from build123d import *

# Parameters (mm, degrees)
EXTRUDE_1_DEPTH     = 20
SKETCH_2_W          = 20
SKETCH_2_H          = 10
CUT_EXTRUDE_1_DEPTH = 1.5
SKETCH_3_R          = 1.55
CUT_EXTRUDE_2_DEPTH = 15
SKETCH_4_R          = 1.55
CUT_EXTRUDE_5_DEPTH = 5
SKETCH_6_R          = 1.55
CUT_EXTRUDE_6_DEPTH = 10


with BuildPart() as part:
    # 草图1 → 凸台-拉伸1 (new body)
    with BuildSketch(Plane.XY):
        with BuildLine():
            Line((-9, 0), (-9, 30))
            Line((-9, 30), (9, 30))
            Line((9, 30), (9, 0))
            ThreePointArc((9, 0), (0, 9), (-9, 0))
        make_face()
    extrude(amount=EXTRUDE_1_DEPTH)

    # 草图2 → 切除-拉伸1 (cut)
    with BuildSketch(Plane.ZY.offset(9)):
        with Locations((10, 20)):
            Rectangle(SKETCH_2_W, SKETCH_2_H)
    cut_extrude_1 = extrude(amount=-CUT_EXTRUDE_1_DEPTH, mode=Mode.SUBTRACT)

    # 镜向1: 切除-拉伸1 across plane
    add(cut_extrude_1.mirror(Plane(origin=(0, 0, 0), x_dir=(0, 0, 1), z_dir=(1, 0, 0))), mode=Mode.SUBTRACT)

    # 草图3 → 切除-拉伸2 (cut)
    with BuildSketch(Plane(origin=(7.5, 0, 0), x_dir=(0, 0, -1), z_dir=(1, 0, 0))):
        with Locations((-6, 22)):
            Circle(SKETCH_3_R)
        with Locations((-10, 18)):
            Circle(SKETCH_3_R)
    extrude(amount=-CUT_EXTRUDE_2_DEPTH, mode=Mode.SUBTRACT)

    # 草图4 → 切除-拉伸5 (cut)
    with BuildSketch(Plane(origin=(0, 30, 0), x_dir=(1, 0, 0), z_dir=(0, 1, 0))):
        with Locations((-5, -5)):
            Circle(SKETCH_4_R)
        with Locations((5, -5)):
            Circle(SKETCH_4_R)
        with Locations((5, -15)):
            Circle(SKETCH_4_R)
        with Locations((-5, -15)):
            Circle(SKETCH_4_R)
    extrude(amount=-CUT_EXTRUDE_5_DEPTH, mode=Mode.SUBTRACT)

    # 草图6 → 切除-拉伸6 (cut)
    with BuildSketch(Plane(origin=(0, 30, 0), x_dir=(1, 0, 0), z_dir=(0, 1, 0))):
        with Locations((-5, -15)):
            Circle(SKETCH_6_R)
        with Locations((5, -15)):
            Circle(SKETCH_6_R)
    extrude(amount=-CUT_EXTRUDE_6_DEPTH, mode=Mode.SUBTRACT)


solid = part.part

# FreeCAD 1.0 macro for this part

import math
import FreeCAD as App
import Part
import Sketcher
Q = App.Units.Quantity


def add_polygon(sketch, points):
    """Adds a closed chain of lines whose ends are joined by coincident constraints."""
    first, n = sketch.GeometryCount, len(points)
    for a, b in zip(points, points[1:] + points[:1]):
        sketch.addGeometry(Part.LineSegment(App.Vector(*a, 0), App.Vector(*b, 0)), False)
    for i in range(n):
        sketch.addConstraint(Sketcher.Constraint("Coincident", first + i, 2, first + (i + 1) % n, 1))

doc = App.newDocument("Part")
body = doc.addObject("PartDesign::Body", "Body")

# Sketch on XY plane
sketch1 = body.newObject("Sketcher::SketchObject", "Sketch")
sketch1.AttachmentSupport = (doc.getObject("XY_Plane"), [""])
sketch1.MapMode = "FlatFace"
sketch1.addGeometry(Part.LineSegment(App.Vector(-9, 30, 0), App.Vector(-9, 0, 0)), False)
sketch1.addGeometry(Part.ArcOfCircle(Part.Circle(App.Vector(0, 0, 0), App.Vector(0, 0, 1), 9), math.radians(0), math.radians(180)), False)
sketch1.addGeometry(Part.LineSegment(App.Vector(9, 0, 0), App.Vector(9, 30, 0)), False)
sketch1.addGeometry(Part.LineSegment(App.Vector(9, 30, 0), App.Vector(-9, 30, 0)), False)
sketch1.addConstraint(Sketcher.Constraint("Tangent", 0, 2, 1, 2))
sketch1.addConstraint(Sketcher.Constraint("Tangent", 1, 1, 2, 1))
sketch1.addConstraint(Sketcher.Constraint("Coincident", 2, 2, 3, 1))
sketch1.addConstraint(Sketcher.Constraint("Coincident", 3, 2, 0, 1))
sketch1.addConstraint(Sketcher.Constraint("Vertical", 0))
sketch1.addConstraint(Sketcher.Constraint("Vertical", 2))
sketch1.addConstraint(Sketcher.Constraint("Horizontal", 3))
sketch1.addConstraint(Sketcher.Constraint("Coincident", 1, 3, -1, 1))
sketch1.addConstraint(Sketcher.Constraint("Radius", 1, Q("9 mm")))
sketch1.addConstraint(Sketcher.Constraint("DistanceY", 0, 2, 0, 1, Q("30 mm")))
pad1 = body.newObject("PartDesign::Pad", "Pad")
pad1.Profile = sketch1
pad1.Length = 20

# Sketch on YZ plane
sketch2 = body.newObject("Sketcher::SketchObject", "Sketch001")
sketch2.AttachmentSupport = (doc.getObject("YZ_Plane"), [""])
sketch2.MapMode = "FlatFace"
sketch2.AttachmentOffset = App.Placement(App.Vector(0, 0, -9), App.Rotation())
add_polygon(sketch2, [(25, 0), (15, 0), (15, 20), (25, 20)])  # lines 0-3
sketch2.addConstraint(Sketcher.Constraint("Horizontal", 0))
sketch2.addConstraint(Sketcher.Constraint("Vertical", 1))
sketch2.addConstraint(Sketcher.Constraint("Horizontal", 2))
sketch2.addConstraint(Sketcher.Constraint("Vertical", 3))
sketch2.addConstraint(Sketcher.Constraint("PointOnObject", 0, 2, -1))
sketch2.addConstraint(Sketcher.Constraint("DistanceX", 0, 2, 0, 1, Q("10 mm")))
sketch2.addConstraint(Sketcher.Constraint("DistanceY", 1, 1, 1, 2, Q("20 mm")))
sketch2.addConstraint(Sketcher.Constraint("DistanceX", -1, 1, 0, 2, Q("15 mm")))
pocket1 = body.newObject("PartDesign::Pocket", "Pocket")
pocket1.Profile = sketch2
pocket1.Length = 1.5
pocket1.Reversed = True
doc.recompute()

mirrored = body.newObject("PartDesign::Mirrored", "Mirrored")
mirrored.Originals = [pocket1]
mirrored.MirrorPlane = (doc.getObject("YZ_Plane"), [""])
body.Tip = mirrored

# Sketch on YZ plane
sketch3 = body.newObject("Sketcher::SketchObject", "Sketch002")
sketch3.AttachmentSupport = (doc.getObject("YZ_Plane"), [""])
sketch3.MapMode = "FlatFace"
sketch3.AttachmentOffset = App.Placement(App.Vector(0, 0, 7.5), App.Rotation())
sketch3.addGeometry(Part.Circle(App.Vector(22, 6, 0), App.Vector(0, 0, 1), 1.55), False)
sketch3.addGeometry(Part.Circle(App.Vector(18, 10, 0), App.Vector(0, 0, 1), 1.55), False)
sketch3.addConstraint(Sketcher.Constraint("Equal", 0, 1))
sketch3.addConstraint(Sketcher.Constraint("Diameter", 0, Q("3.1 mm")))
sketch3.addConstraint(Sketcher.Constraint("DistanceX", -1, 1, 0, 3, Q("22 mm")))
sketch3.addConstraint(Sketcher.Constraint("DistanceY", -1, 1, 0, 3, Q("6 mm")))
sketch3.addConstraint(Sketcher.Constraint("DistanceX", -1, 1, 1, 3, Q("18 mm")))
sketch3.addConstraint(Sketcher.Constraint("DistanceY", -1, 1, 1, 3, Q("10 mm")))
pocket2 = body.newObject("PartDesign::Pocket", "Pocket001")
pocket2.Profile = sketch3
pocket2.Length = 15

# Sketch on XZ plane
sketch4 = body.newObject("Sketcher::SketchObject", "Sketch003")
sketch4.AttachmentSupport = (doc.getObject("XZ_Plane"), [""])
sketch4.MapMode = "FlatFace"
sketch4.AttachmentOffset = App.Placement(App.Vector(0, 0, -30), App.Rotation())
sketch4.addGeometry(Part.Circle(App.Vector(-5, 5, 0), App.Vector(0, 0, 1), 1.55), False)
sketch4.addGeometry(Part.Circle(App.Vector(5, 5, 0), App.Vector(0, 0, 1), 1.55), False)
sketch4.addGeometry(Part.Circle(App.Vector(5, 15, 0), App.Vector(0, 0, 1), 1.55), False)
sketch4.addGeometry(Part.Circle(App.Vector(-5, 15, 0), App.Vector(0, 0, 1), 1.55), False)
sketch4.addConstraint(Sketcher.Constraint("Equal", 0, 1))
sketch4.addConstraint(Sketcher.Constraint("Equal", 1, 2))
sketch4.addConstraint(Sketcher.Constraint("Equal", 2, 3))
sketch4.addConstraint(Sketcher.Constraint("Symmetric", 0, 3, 1, 3, -2))
sketch4.addConstraint(Sketcher.Constraint("Symmetric", 2, 3, 3, 3, -2))
sketch4.addConstraint(Sketcher.Constraint("Vertical", 1, 3, 2, 3))
sketch4.addConstraint(Sketcher.Constraint("Diameter", 0, Q("3.1 mm")))
sketch4.addConstraint(Sketcher.Constraint("DistanceX", 0, 3, -1, 1, Q("5 mm")))
sketch4.addConstraint(Sketcher.Constraint("DistanceY", -1, 1, 0, 3, Q("5 mm")))
sketch4.addConstraint(Sketcher.Constraint("DistanceY", -1, 1, 2, 3, Q("15 mm")))
pocket3 = body.newObject("PartDesign::Pocket", "Pocket002")
pocket3.Profile = sketch4
pocket3.Length = 5
pocket3.Reversed = True

# Sketch on XZ plane
sketch5 = body.newObject("Sketcher::SketchObject", "Sketch004")
sketch5.AttachmentSupport = (doc.getObject("XZ_Plane"), [""])
sketch5.MapMode = "FlatFace"
sketch5.AttachmentOffset = App.Placement(App.Vector(0, 0, -30), App.Rotation())
sketch5.addGeometry(Part.Circle(App.Vector(-5, 15, 0), App.Vector(0, 0, 1), 1.55), False)
sketch5.addGeometry(Part.Circle(App.Vector(5, 15, 0), App.Vector(0, 0, 1), 1.55), False)
sketch5.addConstraint(Sketcher.Constraint("Equal", 0, 1))
sketch5.addConstraint(Sketcher.Constraint("Symmetric", 0, 3, 1, 3, -2))
sketch5.addConstraint(Sketcher.Constraint("Diameter", 0, Q("3.1 mm")))
sketch5.addConstraint(Sketcher.Constraint("DistanceX", 0, 3, -1, 1, Q("5 mm")))
sketch5.addConstraint(Sketcher.Constraint("DistanceY", -1, 1, 0, 3, Q("15 mm")))
pocket4 = body.newObject("PartDesign::Pocket", "Pocket003")
pocket4.Profile = sketch5
pocket4.Length = 10
pocket4.Reversed = True

doc.recompute()
